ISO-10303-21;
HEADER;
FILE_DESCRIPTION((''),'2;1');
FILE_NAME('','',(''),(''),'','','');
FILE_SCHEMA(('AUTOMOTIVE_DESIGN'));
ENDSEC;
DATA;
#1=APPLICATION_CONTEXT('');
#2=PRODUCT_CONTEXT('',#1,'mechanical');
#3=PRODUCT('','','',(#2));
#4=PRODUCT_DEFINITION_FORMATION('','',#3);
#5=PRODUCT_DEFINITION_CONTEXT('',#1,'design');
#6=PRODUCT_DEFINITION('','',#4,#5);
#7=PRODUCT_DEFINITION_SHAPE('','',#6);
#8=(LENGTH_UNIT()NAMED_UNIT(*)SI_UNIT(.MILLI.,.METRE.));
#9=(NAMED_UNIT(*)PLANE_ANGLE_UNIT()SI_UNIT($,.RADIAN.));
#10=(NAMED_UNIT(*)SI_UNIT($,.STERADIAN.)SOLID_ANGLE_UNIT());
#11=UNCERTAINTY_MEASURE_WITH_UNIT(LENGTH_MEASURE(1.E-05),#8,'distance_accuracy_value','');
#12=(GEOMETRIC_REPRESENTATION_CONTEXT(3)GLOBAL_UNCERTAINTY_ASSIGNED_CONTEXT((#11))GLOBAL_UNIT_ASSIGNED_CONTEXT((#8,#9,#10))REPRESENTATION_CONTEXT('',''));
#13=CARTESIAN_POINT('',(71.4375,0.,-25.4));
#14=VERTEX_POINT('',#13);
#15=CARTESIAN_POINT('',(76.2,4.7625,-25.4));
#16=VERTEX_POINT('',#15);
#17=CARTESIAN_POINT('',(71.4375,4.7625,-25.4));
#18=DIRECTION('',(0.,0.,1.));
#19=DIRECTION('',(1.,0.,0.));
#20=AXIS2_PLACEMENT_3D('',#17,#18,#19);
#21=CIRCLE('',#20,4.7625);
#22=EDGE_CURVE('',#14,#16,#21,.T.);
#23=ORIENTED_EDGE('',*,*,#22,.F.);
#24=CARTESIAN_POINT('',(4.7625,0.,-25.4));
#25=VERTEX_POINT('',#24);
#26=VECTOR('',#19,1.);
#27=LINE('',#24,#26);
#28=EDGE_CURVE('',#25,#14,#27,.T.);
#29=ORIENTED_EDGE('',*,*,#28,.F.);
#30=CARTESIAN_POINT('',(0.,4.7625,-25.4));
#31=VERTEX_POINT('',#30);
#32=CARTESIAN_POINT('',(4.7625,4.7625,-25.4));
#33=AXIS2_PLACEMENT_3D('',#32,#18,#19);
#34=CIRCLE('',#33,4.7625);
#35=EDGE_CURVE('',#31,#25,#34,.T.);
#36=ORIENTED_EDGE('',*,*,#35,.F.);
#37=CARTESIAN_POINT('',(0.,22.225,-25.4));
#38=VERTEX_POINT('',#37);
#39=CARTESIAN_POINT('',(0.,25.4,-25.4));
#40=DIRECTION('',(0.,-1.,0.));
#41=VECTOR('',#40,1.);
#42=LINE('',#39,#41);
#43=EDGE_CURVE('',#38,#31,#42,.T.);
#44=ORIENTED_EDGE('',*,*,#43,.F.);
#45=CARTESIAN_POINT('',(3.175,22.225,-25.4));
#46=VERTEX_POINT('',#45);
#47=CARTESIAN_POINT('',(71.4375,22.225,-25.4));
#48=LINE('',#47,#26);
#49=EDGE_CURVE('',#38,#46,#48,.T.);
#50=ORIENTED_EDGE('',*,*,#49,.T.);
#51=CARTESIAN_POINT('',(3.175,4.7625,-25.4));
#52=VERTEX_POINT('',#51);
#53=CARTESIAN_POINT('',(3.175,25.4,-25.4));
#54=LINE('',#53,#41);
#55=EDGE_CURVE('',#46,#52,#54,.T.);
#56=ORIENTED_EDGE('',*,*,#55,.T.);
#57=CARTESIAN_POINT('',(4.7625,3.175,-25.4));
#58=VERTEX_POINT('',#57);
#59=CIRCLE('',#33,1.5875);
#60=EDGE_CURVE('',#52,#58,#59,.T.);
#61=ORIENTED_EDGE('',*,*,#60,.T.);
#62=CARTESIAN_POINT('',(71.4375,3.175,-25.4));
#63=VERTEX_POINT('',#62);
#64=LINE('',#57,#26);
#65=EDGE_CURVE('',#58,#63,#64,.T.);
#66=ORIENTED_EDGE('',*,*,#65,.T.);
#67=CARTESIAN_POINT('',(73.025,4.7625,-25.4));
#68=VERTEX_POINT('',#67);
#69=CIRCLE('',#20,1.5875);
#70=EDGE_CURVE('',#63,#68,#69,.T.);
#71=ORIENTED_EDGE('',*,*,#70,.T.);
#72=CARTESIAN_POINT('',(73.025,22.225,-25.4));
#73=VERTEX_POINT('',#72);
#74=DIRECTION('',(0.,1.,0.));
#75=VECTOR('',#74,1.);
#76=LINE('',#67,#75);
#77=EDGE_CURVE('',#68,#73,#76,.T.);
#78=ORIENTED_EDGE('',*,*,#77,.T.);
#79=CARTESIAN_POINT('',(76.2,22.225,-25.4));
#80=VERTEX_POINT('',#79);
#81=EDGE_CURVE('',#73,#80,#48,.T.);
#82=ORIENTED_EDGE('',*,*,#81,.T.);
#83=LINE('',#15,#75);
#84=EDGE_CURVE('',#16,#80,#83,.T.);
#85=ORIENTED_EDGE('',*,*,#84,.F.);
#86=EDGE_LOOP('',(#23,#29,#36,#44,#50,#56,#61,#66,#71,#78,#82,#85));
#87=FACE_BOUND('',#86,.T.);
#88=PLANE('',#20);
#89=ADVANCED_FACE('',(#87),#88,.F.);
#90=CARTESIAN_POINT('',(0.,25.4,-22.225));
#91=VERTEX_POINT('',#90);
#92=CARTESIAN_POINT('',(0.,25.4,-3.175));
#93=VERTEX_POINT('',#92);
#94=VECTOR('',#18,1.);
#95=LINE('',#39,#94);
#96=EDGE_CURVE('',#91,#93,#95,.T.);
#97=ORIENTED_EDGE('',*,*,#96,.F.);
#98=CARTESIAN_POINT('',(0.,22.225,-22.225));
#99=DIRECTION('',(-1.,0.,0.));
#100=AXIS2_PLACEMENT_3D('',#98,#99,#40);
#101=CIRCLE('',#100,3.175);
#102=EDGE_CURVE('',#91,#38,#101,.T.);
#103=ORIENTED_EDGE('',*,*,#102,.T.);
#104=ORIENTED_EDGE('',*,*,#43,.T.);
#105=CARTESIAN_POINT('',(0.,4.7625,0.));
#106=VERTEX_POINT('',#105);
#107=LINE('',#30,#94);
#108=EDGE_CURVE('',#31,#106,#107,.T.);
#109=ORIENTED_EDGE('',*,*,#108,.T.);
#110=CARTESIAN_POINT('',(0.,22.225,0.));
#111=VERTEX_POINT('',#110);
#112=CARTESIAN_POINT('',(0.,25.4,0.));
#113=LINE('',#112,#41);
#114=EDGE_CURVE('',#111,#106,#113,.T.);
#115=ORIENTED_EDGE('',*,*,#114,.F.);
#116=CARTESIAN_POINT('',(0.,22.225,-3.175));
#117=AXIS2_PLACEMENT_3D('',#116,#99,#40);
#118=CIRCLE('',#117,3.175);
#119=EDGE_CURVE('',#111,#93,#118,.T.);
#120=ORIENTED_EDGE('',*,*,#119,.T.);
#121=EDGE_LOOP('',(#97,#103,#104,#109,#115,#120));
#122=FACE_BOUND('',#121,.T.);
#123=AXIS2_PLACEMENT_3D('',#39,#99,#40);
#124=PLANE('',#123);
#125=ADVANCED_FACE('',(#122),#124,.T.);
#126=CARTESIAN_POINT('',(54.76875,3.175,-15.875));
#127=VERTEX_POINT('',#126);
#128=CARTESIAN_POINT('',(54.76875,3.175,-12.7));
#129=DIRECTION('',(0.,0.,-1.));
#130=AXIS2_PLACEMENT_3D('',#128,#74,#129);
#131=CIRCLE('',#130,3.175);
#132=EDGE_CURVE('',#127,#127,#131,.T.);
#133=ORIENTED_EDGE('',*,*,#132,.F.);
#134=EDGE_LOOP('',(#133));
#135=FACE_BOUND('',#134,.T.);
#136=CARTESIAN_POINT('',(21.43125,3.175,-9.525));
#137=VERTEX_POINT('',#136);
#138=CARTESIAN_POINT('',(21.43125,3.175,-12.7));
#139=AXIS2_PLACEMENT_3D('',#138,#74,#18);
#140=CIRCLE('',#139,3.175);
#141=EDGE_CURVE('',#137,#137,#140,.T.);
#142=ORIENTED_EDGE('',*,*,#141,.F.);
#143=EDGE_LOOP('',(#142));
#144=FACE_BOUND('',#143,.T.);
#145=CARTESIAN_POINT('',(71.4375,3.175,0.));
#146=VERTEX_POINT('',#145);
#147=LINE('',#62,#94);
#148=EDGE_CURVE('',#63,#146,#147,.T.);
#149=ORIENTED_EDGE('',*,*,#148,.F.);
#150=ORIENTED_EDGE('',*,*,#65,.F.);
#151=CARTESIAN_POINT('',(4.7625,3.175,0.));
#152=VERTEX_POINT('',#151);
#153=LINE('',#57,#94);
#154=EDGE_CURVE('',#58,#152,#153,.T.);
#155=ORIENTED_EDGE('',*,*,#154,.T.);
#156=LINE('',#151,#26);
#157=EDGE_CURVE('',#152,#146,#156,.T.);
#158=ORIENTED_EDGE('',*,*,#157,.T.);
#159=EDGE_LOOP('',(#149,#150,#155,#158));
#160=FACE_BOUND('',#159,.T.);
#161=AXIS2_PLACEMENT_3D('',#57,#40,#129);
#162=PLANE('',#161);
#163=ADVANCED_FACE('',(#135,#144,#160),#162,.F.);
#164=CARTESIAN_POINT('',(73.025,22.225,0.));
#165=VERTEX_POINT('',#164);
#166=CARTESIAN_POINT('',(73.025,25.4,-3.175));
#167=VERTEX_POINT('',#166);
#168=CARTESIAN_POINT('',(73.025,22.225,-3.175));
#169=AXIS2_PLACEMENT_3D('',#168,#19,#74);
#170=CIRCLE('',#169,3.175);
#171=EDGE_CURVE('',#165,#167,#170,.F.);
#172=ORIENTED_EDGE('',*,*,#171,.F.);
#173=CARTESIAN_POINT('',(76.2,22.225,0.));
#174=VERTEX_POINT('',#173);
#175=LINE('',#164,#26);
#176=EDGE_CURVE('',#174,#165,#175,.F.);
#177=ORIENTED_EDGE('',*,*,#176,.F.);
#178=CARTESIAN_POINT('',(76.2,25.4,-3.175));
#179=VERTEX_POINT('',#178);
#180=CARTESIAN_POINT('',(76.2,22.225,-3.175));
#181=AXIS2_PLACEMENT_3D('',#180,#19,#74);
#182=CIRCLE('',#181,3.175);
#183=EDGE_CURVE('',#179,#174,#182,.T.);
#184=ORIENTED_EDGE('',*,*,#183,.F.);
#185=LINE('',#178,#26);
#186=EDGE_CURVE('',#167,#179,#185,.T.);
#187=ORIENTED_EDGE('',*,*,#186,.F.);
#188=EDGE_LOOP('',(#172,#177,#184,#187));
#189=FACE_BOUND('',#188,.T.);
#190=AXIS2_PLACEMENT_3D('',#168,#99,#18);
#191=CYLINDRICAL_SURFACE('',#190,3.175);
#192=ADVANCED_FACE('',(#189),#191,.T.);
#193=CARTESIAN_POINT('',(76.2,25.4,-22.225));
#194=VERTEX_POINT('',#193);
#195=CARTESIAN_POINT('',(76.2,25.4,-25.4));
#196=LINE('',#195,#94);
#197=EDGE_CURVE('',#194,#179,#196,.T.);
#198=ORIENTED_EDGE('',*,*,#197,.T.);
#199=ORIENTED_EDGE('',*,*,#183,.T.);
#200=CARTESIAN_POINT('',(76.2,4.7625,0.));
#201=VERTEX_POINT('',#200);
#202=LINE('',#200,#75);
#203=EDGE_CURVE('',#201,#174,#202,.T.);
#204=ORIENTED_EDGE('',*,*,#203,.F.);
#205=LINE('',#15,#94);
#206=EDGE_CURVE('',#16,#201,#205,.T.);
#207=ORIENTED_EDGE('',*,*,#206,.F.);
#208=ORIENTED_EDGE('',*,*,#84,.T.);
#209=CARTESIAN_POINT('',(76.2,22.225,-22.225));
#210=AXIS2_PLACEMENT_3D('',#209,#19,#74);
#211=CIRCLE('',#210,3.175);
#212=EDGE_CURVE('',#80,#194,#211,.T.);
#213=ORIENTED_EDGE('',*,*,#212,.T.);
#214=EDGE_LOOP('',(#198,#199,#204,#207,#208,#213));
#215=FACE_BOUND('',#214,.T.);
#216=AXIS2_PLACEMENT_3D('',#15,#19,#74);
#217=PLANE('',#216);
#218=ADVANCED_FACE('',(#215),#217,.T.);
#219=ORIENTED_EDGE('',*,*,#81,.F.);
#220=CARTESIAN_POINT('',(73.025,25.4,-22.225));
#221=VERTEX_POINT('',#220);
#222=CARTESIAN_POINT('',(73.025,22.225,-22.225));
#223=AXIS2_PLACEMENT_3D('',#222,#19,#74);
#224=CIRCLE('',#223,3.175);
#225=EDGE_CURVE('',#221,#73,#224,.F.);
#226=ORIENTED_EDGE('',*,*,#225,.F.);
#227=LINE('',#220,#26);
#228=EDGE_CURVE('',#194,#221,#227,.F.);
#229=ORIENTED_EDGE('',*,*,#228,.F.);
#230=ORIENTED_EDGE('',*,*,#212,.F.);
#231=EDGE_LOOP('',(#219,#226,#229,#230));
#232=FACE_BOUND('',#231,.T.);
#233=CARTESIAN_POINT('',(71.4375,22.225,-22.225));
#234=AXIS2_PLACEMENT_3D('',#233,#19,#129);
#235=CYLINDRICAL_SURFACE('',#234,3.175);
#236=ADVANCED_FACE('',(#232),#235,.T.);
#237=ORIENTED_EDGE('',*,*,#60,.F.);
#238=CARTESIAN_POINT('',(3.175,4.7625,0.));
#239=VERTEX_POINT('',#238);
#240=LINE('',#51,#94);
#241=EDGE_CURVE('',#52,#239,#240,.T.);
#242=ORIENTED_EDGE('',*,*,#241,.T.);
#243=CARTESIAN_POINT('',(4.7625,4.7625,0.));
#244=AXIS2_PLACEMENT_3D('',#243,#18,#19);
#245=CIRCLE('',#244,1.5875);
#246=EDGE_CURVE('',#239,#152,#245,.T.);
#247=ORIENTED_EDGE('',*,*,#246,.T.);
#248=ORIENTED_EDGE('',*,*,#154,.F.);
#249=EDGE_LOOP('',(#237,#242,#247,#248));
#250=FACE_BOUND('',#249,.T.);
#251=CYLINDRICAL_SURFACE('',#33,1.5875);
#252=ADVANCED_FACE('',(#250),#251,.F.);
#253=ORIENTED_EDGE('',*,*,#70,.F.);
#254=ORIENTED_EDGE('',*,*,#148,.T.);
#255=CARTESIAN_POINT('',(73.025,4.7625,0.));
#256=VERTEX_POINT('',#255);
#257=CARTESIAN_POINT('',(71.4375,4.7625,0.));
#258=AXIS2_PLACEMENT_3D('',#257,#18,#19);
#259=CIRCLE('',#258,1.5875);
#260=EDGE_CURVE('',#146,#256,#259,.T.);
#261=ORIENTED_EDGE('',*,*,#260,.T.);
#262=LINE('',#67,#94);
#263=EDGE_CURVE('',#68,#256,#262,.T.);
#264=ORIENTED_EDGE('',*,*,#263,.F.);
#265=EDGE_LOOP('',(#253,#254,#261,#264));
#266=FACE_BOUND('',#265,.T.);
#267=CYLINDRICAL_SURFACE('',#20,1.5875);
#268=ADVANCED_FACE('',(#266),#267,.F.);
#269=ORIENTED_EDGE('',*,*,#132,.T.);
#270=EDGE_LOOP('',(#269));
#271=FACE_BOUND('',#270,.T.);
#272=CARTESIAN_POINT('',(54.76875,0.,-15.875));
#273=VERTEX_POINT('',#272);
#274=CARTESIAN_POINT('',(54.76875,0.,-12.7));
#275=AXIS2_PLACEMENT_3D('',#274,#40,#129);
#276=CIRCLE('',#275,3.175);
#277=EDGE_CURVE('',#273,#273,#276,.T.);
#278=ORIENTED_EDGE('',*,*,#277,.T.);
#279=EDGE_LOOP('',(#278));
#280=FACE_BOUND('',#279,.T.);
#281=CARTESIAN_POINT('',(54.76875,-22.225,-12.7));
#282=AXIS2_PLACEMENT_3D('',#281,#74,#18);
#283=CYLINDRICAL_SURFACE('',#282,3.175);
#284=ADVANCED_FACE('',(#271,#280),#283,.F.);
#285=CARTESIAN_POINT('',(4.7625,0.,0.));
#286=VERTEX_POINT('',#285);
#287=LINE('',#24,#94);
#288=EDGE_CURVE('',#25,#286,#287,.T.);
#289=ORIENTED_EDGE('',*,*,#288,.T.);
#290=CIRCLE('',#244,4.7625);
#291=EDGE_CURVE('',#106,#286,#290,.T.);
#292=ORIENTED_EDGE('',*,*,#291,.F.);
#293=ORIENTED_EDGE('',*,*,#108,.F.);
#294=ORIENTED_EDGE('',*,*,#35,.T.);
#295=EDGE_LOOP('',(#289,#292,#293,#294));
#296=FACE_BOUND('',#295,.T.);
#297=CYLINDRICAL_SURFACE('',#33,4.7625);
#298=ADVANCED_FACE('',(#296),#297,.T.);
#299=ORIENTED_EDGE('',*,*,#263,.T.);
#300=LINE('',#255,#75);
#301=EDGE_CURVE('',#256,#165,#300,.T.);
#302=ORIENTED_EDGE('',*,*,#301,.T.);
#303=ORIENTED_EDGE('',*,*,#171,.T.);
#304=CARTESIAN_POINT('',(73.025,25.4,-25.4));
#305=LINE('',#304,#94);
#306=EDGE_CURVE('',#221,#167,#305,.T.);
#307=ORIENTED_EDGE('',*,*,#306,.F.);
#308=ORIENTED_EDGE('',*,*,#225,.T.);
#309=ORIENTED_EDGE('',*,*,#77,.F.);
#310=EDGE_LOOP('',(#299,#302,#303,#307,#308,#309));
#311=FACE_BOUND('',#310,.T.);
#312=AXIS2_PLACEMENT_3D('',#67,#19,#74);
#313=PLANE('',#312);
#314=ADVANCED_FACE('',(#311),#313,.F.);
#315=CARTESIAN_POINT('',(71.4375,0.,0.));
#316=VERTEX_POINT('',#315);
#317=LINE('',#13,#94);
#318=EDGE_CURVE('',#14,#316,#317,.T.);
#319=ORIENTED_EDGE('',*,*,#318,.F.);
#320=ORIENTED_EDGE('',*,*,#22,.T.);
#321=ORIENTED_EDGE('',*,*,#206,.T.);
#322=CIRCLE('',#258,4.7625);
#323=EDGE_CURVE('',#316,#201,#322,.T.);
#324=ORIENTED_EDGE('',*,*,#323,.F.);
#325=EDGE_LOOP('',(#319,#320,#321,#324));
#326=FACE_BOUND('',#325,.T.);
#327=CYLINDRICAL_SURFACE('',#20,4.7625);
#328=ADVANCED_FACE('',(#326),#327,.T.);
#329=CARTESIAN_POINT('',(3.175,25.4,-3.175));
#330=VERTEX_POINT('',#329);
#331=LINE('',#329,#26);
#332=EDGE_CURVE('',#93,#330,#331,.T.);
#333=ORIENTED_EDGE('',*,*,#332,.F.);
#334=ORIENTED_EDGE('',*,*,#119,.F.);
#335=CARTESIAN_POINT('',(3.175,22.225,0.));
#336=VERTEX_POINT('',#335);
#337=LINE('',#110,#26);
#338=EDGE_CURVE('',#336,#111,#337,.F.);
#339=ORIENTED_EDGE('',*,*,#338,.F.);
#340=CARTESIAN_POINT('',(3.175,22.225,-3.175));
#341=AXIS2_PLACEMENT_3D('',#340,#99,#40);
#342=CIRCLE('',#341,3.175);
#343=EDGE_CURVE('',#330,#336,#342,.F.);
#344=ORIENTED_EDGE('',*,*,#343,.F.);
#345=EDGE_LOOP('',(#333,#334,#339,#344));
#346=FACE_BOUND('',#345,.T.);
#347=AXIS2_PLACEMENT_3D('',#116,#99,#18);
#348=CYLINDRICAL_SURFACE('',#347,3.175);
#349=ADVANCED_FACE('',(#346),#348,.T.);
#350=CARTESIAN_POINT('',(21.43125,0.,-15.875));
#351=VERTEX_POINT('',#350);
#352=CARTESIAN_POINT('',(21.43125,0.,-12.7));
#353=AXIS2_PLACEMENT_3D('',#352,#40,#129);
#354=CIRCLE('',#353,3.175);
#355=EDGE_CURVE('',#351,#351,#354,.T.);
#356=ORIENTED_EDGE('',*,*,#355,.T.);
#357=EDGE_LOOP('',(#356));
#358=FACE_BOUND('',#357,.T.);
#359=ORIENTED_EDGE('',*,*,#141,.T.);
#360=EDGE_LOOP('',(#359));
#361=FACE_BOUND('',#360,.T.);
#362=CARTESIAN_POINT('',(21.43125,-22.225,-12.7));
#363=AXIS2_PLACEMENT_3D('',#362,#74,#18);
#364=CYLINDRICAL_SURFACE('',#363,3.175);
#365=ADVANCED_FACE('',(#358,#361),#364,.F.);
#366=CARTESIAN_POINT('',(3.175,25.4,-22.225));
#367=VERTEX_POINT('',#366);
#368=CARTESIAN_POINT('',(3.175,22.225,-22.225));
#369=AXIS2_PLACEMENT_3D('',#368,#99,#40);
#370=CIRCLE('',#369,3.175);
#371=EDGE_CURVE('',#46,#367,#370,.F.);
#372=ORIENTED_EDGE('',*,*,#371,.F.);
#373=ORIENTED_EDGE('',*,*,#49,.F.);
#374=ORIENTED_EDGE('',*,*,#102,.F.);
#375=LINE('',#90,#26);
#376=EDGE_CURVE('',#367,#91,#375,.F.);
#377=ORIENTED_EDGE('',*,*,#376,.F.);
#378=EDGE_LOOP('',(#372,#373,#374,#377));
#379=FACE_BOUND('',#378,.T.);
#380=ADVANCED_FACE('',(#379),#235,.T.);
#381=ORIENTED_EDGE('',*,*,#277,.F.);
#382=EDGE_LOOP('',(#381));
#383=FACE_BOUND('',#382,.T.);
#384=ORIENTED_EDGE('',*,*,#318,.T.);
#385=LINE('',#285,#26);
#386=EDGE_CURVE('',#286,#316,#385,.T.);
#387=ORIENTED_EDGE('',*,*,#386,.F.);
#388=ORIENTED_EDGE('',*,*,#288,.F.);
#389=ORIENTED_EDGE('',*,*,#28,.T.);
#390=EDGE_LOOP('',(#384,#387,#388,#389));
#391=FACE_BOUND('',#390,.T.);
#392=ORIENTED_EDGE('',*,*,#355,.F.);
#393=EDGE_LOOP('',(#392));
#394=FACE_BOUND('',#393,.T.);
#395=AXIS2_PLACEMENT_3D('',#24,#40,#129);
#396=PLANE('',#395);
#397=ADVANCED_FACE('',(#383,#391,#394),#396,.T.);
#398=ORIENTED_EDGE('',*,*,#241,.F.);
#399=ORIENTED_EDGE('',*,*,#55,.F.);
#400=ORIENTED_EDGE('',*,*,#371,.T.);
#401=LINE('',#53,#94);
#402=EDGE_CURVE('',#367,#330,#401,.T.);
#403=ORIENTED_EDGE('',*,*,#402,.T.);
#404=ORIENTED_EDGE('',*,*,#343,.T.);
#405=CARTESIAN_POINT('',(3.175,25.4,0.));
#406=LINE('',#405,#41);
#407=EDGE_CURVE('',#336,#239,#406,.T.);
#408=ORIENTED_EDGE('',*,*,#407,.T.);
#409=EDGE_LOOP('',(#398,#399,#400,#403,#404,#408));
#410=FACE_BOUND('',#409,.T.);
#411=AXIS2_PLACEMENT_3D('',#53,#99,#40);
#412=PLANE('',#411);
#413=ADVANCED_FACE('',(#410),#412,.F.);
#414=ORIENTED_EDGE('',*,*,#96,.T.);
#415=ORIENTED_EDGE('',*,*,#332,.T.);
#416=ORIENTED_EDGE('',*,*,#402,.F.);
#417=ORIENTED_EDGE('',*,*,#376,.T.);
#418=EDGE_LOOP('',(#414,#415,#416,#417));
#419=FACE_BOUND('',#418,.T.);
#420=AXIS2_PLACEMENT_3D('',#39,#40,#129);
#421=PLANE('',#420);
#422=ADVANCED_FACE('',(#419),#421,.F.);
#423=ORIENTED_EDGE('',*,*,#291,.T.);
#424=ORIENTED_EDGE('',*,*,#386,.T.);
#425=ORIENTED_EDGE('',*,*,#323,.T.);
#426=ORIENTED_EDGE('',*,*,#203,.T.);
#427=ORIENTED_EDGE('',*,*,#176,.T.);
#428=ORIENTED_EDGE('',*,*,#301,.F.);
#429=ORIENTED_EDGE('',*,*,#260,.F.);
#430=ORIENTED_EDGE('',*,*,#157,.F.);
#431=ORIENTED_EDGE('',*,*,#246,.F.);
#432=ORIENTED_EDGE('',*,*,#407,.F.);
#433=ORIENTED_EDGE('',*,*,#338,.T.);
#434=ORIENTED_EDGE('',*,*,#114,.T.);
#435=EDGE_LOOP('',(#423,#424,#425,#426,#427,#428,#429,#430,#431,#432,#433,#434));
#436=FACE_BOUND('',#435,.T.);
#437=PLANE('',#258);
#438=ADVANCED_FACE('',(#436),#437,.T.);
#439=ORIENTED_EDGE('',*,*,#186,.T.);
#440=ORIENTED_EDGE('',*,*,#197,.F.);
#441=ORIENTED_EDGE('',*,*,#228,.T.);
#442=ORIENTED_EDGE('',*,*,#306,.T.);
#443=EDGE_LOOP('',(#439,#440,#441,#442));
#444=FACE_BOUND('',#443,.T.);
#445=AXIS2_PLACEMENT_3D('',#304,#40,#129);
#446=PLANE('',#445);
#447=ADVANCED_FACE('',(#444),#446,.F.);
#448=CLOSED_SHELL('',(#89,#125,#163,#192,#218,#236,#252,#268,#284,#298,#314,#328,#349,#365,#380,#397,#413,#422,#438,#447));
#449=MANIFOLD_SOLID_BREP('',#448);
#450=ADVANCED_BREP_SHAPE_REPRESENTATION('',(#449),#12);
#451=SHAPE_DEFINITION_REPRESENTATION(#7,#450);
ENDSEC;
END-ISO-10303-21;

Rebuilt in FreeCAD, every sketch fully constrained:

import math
import FreeCAD as App
import Part
import Sketcher
from FreeCAD import Vector
Q = App.Units.Quantity


def edges_at(feature, points):
    """Names of the edges that pass closest to the given points."""
    edges = feature.Shape.Edges
    near = lambda p: min(range(len(edges)), key=lambda i: edges[i].distToShape(Part.Vertex(*p))[0])
    return sorted({f"Edge{near(p) + 1}" for p in points})

doc = App.newDocument("Part")
body = doc.addObject("PartDesign::Body", "Body")

sketch1 = doc.addObject("Sketcher::SketchObject", "Sketch")
body.addObject(sketch1)
sketch1.AttachmentSupport = (doc.XY_Plane, [""])
sketch1.MapMode = "FlatFace"
sketch1.addGeometry(Part.LineSegment(Vector(0, 25.4, 0), Vector(0, 4.8, 0)), False)
sketch1.addGeometry(Part.ArcOfCircle(Part.Circle(Vector(4.8, 4.8, 0), Vector(0, 0, 1), 4.8), math.radians(-180), math.radians(-90)), False)
sketch1.addGeometry(Part.LineSegment(Vector(4.8, 0, 0), Vector(71.4, 0, 0)), False)
sketch1.addGeometry(Part.ArcOfCircle(Part.Circle(Vector(71.4, 4.8, 0), Vector(0, 0, 1), 4.8), math.radians(-90), math.radians(0)), False)
sketch1.addGeometry(Part.LineSegment(Vector(76.2, 4.8, 0), Vector(76.2, 25.4, 0)), False)
sketch1.addGeometry(Part.LineSegment(Vector(76.2, 25.4, 0), Vector(73, 25.4, 0)), False)
sketch1.addGeometry(Part.LineSegment(Vector(73, 25.4, 0), Vector(73, 4.8, 0)), False)
sketch1.addGeometry(Part.ArcOfCircle(Part.Circle(Vector(71.4, 4.8, 0), Vector(0, 0, 1), 1.6), math.radians(-90), math.radians(0)), False)
sketch1.addGeometry(Part.LineSegment(Vector(71.4, 3.2, 0), Vector(4.8, 3.2, 0)), False)
sketch1.addGeometry(Part.ArcOfCircle(Part.Circle(Vector(4.8, 4.8, 0), Vector(0, 0, 1), 1.6), math.radians(180), math.radians(270)), False)
sketch1.addGeometry(Part.LineSegment(Vector(3.2, 4.8, 0), Vector(3.2, 25.4, 0)), False)
sketch1.addGeometry(Part.LineSegment(Vector(3.2, 25.4, 0), Vector(0, 25.4, 0)), False)
sketch1.addConstraint(Sketcher.Constraint("Tangent", 0, 2, 1, 1))
sketch1.addConstraint(Sketcher.Constraint("Tangent", 1, 2, 2, 1))
sketch1.addConstraint(Sketcher.Constraint("Tangent", 2, 2, 3, 1))
sketch1.addConstraint(Sketcher.Constraint("Tangent", 3, 2, 4, 1))
sketch1.addConstraint(Sketcher.Constraint("Coincident", 4, 2, 5, 1))
sketch1.addConstraint(Sketcher.Constraint("Coincident", 5, 2, 6, 1))
sketch1.addConstraint(Sketcher.Constraint("Tangent", 6, 2, 7, 2))
sketch1.addConstraint(Sketcher.Constraint("Tangent", 7, 1, 8, 1))
sketch1.addConstraint(Sketcher.Constraint("Tangent", 8, 2, 9, 2))
sketch1.addConstraint(Sketcher.Constraint("Tangent", 9, 1, 10, 1))
sketch1.addConstraint(Sketcher.Constraint("Coincident", 10, 2, 11, 1))
sketch1.addConstraint(Sketcher.Constraint("Coincident", 11, 2, 0, 1))
sketch1.addConstraint(Sketcher.Constraint("Vertical", 0))
sketch1.addConstraint(Sketcher.Constraint("Horizontal", 2))
sketch1.addConstraint(Sketcher.Constraint("Vertical", 4))
sketch1.addConstraint(Sketcher.Constraint("Horizontal", 5))
sketch1.addConstraint(Sketcher.Constraint("Vertical", 6))
sketch1.addConstraint(Sketcher.Constraint("Horizontal", 8))
sketch1.addConstraint(Sketcher.Constraint("Vertical", 10))
sketch1.addConstraint(Sketcher.Constraint("Horizontal", 11))
sketch1.addConstraint(Sketcher.Constraint("Coincident", 7, 3, 3, 3))
sketch1.addConstraint(Sketcher.Constraint("Coincident", 9, 3, 1, 3))
sketch1.addConstraint(Sketcher.Constraint("Equal", 1, 3))
sketch1.addConstraint(Sketcher.Constraint("PointOnObject", 0, 2, -2))
sketch1.addConstraint(Sketcher.Constraint("PointOnObject", 1, 2, -1))
sketch1.addConstraint(Sketcher.Constraint("Horizontal", 5, 2, 10, 2))
sketch1.addConstraint(Sketcher.Constraint("DistanceX", -1, 1, 3, 2, Q("3 in")))
sketch1.addConstraint(Sketcher.Constraint("DistanceY", -1, 1, 4, 2, Q("1 in")))
sketch1.addConstraint(Sketcher.Constraint("Radius", 1, Q("0.1875 in")))
sketch1.addConstraint(Sketcher.Constraint("Radius", 7, Q("0.0625 in")))
pad1 = doc.addObject("PartDesign::Pad", "Pad")
body.addObject(pad1)
pad1.Profile = sketch1
pad1.Length = Q("1 in")
pad1.Reversed = True
doc.recompute()

fillet = doc.addObject("PartDesign::Fillet", "Fillet")
body.addObject(fillet)
fillet.Base = (pad1, edges_at(pad1, [
    (1.587, 25.4, 0),
    (74.612, 25.4, 0),
    (1.587, 25.4, -25.4),
    (74.612, 25.4, -25.4),
]))
fillet.Radius = Q("0.125 in")

sketch2 = doc.addObject("Sketcher::SketchObject", "Sketch001")
body.addObject(sketch2)
sketch2.AttachmentSupport = (doc.XZ_Plane, [""])
sketch2.MapMode = "FlatFace"
sketch2.AttachmentOffset = App.Placement(Vector(0, 0, -0.125 * 25.4), App.Rotation())
sketch2.addGeometry(Part.Circle(Vector(21.4, -12.7, 0), Vector(0, 0, 1), 3.2), False)
sketch2.addGeometry(Part.Circle(Vector(54.8, -12.7, 0), Vector(0, 0, 1), 3.2), False)
sketch2.addConstraint(Sketcher.Constraint("Equal", 0, 1))
sketch2.addConstraint(Sketcher.Constraint("Horizontal", 0, 3, 1, 3))
sketch2.addConstraint(Sketcher.Constraint("Diameter", 0, Q("0.25 in")))
sketch2.addConstraint(Sketcher.Constraint("DistanceY", 0, 3, -1, 1, Q("0.5 in")))
sketch2.addConstraint(Sketcher.Constraint("DistanceX", -1, 1, 0, 3, Q("0.84375 in")))
sketch2.addConstraint(Sketcher.Constraint("DistanceX", -1, 1, 1, 3, Q("2.15625 in")))
pocket1 = doc.addObject("PartDesign::Pocket", "Pocket")
body.addObject(pocket1)
pocket1.Profile = sketch2
pocket1.Length = Q("1 in")
pocket1.Reversed = True

doc.recompute()
